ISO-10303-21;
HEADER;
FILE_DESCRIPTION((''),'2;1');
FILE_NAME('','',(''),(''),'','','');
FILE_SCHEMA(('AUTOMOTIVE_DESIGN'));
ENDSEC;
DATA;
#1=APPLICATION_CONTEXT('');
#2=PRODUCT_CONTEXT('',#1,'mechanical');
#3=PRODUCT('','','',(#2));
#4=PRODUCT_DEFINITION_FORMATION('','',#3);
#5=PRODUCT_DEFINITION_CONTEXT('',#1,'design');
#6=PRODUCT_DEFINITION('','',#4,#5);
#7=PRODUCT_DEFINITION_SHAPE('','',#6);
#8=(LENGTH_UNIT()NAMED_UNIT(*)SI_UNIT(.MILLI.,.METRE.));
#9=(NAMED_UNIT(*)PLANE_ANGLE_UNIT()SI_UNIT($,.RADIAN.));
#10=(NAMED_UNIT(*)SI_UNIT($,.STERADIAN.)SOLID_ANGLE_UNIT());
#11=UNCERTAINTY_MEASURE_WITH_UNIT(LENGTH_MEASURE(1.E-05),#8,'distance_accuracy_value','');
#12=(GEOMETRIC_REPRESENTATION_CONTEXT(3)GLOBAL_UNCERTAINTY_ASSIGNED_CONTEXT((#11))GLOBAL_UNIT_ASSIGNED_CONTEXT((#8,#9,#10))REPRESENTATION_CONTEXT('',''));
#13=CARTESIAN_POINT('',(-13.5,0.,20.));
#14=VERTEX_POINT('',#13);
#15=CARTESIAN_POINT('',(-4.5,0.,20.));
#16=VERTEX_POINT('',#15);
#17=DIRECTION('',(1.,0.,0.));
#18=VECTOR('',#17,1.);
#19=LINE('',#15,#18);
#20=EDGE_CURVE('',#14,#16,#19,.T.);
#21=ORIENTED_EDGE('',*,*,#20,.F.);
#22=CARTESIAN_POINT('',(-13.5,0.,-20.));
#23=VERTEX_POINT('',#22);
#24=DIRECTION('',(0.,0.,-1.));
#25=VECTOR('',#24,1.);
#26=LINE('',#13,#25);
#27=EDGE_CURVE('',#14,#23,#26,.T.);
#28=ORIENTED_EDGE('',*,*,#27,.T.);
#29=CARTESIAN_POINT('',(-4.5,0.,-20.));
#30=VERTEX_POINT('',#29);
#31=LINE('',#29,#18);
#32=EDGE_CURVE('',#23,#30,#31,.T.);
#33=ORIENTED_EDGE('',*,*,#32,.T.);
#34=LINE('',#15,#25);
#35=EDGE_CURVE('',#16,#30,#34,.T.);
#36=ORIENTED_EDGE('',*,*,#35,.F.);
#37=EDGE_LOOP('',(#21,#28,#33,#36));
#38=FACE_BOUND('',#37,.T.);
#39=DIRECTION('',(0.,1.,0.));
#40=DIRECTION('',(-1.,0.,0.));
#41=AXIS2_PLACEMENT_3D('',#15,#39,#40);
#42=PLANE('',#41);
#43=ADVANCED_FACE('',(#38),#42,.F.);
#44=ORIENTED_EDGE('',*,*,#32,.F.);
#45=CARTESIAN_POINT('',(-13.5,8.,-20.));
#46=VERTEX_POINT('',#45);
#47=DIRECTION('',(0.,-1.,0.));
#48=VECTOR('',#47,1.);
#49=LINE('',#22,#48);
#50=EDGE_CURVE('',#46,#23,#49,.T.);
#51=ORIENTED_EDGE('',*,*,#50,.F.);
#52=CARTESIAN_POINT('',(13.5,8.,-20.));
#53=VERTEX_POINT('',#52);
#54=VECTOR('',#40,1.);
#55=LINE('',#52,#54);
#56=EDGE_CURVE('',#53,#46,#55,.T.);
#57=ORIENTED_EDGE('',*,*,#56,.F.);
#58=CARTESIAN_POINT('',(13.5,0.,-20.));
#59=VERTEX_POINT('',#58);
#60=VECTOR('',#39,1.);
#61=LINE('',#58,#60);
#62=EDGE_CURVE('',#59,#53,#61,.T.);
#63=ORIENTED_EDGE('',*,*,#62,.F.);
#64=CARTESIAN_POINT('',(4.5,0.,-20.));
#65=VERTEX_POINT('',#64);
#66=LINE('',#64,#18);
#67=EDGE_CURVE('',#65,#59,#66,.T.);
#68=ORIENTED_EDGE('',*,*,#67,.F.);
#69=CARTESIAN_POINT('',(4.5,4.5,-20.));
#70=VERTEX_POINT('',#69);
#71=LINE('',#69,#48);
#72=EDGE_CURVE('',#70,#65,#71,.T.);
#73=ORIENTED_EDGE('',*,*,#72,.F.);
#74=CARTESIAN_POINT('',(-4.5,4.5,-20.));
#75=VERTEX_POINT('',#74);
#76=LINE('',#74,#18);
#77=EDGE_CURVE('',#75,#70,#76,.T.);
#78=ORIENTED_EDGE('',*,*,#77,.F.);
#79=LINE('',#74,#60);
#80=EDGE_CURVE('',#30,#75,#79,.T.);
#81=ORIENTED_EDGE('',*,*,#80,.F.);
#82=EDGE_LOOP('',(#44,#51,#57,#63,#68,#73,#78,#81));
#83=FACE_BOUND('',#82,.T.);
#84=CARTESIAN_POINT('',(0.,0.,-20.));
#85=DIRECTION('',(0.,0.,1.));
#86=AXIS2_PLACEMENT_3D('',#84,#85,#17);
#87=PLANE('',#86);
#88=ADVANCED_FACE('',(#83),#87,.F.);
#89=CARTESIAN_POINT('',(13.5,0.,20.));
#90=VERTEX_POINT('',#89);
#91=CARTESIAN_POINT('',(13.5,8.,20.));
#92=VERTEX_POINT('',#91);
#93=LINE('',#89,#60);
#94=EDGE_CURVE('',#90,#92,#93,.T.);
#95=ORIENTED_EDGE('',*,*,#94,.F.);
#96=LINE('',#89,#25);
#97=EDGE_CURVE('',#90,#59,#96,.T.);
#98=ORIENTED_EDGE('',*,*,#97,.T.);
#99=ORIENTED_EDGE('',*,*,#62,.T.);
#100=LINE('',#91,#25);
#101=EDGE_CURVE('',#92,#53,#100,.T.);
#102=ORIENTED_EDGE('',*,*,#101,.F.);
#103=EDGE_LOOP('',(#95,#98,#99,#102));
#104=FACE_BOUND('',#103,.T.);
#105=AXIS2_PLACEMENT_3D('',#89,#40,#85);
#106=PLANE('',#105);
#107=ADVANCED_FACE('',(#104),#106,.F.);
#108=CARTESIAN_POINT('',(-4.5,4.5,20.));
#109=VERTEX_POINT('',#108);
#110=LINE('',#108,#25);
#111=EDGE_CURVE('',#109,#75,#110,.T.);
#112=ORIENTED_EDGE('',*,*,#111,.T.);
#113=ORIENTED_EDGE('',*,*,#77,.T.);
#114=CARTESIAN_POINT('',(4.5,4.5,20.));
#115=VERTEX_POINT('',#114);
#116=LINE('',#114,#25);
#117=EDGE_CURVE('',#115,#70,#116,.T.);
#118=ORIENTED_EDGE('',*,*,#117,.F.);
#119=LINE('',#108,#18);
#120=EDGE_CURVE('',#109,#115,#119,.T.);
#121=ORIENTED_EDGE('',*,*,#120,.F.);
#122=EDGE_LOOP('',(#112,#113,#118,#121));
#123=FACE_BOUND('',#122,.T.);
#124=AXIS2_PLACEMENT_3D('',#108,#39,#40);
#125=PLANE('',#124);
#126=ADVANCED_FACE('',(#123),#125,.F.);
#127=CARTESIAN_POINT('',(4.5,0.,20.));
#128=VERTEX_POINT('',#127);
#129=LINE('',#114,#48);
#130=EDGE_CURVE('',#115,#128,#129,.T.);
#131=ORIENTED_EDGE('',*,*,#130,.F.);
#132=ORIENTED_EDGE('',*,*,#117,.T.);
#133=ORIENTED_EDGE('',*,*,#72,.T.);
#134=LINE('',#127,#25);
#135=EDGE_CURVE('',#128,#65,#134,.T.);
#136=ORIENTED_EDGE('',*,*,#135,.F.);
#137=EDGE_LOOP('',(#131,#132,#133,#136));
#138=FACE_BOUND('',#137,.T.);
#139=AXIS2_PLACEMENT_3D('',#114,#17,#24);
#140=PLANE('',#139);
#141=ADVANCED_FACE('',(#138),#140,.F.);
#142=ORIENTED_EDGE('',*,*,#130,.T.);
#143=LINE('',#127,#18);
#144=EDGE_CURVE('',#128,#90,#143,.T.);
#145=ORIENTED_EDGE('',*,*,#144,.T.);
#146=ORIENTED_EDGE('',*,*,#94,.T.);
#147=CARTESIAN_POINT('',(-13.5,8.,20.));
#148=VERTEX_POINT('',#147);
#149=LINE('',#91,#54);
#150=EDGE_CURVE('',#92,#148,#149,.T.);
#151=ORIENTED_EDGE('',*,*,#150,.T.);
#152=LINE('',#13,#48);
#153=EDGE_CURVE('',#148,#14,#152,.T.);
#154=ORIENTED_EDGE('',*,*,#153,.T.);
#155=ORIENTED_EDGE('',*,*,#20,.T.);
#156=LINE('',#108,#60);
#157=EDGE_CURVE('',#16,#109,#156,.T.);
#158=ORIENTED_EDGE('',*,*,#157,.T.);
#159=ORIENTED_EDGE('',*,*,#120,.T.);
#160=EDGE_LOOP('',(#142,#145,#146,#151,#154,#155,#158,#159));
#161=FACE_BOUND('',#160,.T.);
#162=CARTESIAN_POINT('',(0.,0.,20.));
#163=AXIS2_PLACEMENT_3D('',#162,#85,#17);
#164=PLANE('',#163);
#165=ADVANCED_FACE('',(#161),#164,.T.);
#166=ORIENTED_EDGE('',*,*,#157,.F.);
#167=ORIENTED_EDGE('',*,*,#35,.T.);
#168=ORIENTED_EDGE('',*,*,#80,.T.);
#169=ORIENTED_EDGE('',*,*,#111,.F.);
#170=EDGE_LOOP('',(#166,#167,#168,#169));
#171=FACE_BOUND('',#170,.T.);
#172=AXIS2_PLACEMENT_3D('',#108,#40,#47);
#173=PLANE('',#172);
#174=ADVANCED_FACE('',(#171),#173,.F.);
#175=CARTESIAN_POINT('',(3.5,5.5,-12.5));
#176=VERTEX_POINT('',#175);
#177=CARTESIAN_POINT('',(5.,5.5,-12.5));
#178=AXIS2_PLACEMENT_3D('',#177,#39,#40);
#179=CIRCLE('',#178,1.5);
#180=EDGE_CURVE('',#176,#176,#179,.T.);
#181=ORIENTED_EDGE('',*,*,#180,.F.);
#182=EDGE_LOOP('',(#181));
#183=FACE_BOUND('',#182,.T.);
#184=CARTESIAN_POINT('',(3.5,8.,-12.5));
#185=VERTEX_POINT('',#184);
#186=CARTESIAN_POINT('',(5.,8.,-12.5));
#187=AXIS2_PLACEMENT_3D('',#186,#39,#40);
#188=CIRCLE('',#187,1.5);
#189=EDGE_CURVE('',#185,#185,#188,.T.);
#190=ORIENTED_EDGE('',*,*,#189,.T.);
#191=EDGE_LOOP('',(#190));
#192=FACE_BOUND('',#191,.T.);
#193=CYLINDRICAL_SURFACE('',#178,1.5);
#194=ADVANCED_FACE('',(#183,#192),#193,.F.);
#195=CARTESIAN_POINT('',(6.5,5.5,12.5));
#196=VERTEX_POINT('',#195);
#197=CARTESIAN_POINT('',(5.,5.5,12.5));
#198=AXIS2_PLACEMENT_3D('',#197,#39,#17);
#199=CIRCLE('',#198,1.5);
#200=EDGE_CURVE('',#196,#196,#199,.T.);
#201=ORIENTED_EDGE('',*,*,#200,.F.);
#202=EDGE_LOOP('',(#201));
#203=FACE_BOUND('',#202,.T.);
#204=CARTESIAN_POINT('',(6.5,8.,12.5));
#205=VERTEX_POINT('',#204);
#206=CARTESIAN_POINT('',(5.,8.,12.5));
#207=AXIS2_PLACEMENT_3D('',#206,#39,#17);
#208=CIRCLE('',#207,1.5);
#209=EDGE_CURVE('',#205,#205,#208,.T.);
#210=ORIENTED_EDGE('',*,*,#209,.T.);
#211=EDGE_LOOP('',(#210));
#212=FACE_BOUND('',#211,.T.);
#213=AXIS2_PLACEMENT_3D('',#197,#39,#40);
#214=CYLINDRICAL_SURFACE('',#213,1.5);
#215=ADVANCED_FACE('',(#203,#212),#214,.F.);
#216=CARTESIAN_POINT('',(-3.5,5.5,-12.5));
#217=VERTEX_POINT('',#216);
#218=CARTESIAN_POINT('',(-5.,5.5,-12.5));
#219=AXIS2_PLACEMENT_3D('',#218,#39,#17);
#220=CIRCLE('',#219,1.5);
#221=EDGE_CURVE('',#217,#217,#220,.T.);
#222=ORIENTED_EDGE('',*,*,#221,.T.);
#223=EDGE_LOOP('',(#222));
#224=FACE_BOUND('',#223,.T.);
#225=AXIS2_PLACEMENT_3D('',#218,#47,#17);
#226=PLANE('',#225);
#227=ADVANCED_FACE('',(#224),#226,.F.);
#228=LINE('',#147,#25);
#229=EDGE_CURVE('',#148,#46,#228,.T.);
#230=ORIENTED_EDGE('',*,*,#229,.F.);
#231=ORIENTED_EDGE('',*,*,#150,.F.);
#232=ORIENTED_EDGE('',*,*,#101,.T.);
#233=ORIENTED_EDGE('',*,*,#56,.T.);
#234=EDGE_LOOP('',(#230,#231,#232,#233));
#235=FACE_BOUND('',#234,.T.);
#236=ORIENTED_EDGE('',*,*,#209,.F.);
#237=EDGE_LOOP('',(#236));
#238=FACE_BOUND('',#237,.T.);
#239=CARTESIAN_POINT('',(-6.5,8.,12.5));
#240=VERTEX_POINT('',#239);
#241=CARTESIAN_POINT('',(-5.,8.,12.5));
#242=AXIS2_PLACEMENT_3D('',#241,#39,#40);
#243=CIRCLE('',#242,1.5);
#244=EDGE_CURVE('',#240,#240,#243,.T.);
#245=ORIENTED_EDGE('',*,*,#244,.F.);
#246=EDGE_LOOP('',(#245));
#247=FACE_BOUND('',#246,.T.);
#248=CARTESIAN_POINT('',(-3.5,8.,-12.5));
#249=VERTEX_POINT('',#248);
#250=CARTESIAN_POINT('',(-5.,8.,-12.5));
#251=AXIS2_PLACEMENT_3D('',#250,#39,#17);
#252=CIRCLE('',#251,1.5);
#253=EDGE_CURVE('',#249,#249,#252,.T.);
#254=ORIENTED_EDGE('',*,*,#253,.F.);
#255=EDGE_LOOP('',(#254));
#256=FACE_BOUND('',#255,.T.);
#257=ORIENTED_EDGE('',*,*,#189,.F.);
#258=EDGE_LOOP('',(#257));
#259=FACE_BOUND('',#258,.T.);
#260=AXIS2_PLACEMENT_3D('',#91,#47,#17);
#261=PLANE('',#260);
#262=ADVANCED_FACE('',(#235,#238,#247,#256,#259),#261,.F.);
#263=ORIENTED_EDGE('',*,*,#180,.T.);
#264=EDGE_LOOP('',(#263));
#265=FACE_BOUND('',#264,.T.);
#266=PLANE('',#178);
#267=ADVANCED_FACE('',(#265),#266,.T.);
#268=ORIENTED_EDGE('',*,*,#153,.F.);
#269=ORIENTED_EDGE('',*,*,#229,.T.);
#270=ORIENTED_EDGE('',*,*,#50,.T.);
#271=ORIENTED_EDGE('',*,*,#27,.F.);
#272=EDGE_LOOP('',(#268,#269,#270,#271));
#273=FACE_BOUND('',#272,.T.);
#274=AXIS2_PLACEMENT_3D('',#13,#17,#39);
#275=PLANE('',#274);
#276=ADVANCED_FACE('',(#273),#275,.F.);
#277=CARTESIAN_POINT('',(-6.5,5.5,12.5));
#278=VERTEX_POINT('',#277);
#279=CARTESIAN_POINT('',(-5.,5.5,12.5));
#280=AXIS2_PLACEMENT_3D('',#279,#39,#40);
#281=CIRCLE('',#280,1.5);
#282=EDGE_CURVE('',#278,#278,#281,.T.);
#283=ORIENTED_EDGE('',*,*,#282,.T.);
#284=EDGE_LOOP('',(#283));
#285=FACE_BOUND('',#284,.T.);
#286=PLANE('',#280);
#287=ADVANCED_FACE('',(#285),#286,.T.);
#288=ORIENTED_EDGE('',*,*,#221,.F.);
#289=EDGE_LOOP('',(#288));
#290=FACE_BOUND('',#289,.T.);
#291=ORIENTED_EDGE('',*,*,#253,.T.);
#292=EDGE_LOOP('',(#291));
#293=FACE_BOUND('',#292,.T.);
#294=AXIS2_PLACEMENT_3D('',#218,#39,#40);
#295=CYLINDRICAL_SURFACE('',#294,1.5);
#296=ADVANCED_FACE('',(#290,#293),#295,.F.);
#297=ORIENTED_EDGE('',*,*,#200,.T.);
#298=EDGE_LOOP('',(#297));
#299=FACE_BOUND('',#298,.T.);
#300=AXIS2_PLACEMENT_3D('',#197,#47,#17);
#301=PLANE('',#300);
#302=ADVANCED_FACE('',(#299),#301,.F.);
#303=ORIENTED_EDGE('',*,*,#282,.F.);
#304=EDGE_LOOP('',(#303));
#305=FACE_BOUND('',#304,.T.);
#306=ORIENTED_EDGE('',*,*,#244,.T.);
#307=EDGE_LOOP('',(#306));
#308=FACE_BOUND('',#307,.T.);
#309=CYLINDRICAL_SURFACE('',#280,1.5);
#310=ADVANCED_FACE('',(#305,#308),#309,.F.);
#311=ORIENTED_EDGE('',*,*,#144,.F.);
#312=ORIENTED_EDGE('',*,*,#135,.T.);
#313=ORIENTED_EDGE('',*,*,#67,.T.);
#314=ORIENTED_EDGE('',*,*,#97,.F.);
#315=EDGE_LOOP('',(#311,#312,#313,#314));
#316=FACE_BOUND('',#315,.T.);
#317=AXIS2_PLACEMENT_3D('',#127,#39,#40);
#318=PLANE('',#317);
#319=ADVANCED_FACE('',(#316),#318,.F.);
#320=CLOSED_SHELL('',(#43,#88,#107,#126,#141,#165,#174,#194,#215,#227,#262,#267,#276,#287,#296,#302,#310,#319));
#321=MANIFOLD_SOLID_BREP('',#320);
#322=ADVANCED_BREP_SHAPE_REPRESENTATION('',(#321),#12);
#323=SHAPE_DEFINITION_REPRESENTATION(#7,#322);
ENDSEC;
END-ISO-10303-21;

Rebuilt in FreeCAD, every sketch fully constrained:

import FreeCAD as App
import Part
import Sketcher


def add_polygon(sketch, points):
    """Adds a closed chain of lines whose ends are joined by coincident constraints."""
    first, n = sketch.GeometryCount, len(points)
    for a, b in zip(points, points[1:] + points[:1]):
        sketch.addGeometry(Part.LineSegment(App.Vector(*a, 0), App.Vector(*b, 0)), False)
    for i in range(n):
        sketch.addConstraint(Sketcher.Constraint("Coincident", first + i, 2, first + (i + 1) % n, 1))

doc = App.newDocument("Part")
body = doc.addObject("PartDesign::Body", "Body")

# Sketch on XY plane
sketch1 = body.newObject("Sketcher::SketchObject", "Sketch")
sketch1.AttachmentSupport = (doc.getObject("XY_Plane"), [""])
sketch1.MapMode = "FlatFace"
add_polygon(sketch1, [(-4.5, 4.5), (4.5, 4.5), (4.5, 0), (13.5, 0), (13.5, 8), (-13.5, 8), (-13.5, 0), (-4.5, 0)])  # lines 0-7
sketch1.addConstraint(Sketcher.Constraint("Horizontal", 0))
sketch1.addConstraint(Sketcher.Constraint("Vertical", 1))
sketch1.addConstraint(Sketcher.Constraint("Horizontal", 2))
sketch1.addConstraint(Sketcher.Constraint("Vertical", 3))
sketch1.addConstraint(Sketcher.Constraint("Horizontal", 4))
sketch1.addConstraint(Sketcher.Constraint("Vertical", 5))
sketch1.addConstraint(Sketcher.Constraint("Horizontal", 6))
sketch1.addConstraint(Sketcher.Constraint("Vertical", 7))
sketch1.addConstraint(Sketcher.Constraint("Symmetric", 2, 2, 5, 2, -1, 1))
sketch1.addConstraint(Sketcher.Constraint("Symmetric", 1, 2, 6, 2, -2))
sketch1.addConstraint(Sketcher.Constraint("Equal", 0, 2))
sketch1.addConstraint(Sketcher.Constraint("DistanceX", 0, 1, 0, 2, 9.0))
sketch1.addConstraint(Sketcher.Constraint("DistanceY", 3, 1, 3, 2, 8.0))
sketch1.addConstraint(Sketcher.Constraint("DistanceY", 1, 2, 1, 1, 4.5))
pad1 = body.newObject("PartDesign::Pad", "Pad")
pad1.Profile = sketch1
pad1.Length = 40
pad1.Midplane = True

# Sketch on XZ plane
sketch2 = body.newObject("Sketcher::SketchObject", "Sketch001")
sketch2.AttachmentSupport = (doc.getObject("XZ_Plane"), [""])
sketch2.MapMode = "FlatFace"
sketch2.AttachmentOffset = App.Placement(App.Vector(0, 0, -8), App.Rotation())
sketch2.addGeometry(Part.Circle(App.Vector(5, -12.5, 0), App.Vector(0, 0, 1), 1.5), False)
sketch2.addGeometry(Part.Circle(App.Vector(-5, -12.5, 0), App.Vector(0, 0, 1), 1.5), False)
sketch2.addGeometry(Part.Circle(App.Vector(-5, 12.5, 0), App.Vector(0, 0, 1), 1.5), False)
sketch2.addGeometry(Part.Circle(App.Vector(5, 12.5, 0), App.Vector(0, 0, 1), 1.5), False)
sketch2.addConstraint(Sketcher.Constraint("Equal", 0, 1))
sketch2.addConstraint(Sketcher.Constraint("Equal", 1, 2))
sketch2.addConstraint(Sketcher.Constraint("Equal", 2, 3))
sketch2.addConstraint(Sketcher.Constraint("Symmetric", 0, 3, 2, 3, -1, 1))
sketch2.addConstraint(Sketcher.Constraint("Symmetric", 1, 3, 3, 3, -1, 1))
sketch2.addConstraint(Sketcher.Constraint("Symmetric", 0, 3, 1, 3, -2))
sketch2.addConstraint(Sketcher.Constraint("Diameter", 0, 3.0))
sketch2.addConstraint(Sketcher.Constraint("DistanceX", -1, 1, 0, 3, 5.0))
sketch2.addConstraint(Sketcher.Constraint("DistanceY", 1, 3, 2, 3, 25.0))
pocket1 = body.newObject("PartDesign::Pocket", "Pocket")
pocket1.Profile = sketch2
pocket1.Length = 2.5
pocket1.Reversed = True

doc.recompute()
